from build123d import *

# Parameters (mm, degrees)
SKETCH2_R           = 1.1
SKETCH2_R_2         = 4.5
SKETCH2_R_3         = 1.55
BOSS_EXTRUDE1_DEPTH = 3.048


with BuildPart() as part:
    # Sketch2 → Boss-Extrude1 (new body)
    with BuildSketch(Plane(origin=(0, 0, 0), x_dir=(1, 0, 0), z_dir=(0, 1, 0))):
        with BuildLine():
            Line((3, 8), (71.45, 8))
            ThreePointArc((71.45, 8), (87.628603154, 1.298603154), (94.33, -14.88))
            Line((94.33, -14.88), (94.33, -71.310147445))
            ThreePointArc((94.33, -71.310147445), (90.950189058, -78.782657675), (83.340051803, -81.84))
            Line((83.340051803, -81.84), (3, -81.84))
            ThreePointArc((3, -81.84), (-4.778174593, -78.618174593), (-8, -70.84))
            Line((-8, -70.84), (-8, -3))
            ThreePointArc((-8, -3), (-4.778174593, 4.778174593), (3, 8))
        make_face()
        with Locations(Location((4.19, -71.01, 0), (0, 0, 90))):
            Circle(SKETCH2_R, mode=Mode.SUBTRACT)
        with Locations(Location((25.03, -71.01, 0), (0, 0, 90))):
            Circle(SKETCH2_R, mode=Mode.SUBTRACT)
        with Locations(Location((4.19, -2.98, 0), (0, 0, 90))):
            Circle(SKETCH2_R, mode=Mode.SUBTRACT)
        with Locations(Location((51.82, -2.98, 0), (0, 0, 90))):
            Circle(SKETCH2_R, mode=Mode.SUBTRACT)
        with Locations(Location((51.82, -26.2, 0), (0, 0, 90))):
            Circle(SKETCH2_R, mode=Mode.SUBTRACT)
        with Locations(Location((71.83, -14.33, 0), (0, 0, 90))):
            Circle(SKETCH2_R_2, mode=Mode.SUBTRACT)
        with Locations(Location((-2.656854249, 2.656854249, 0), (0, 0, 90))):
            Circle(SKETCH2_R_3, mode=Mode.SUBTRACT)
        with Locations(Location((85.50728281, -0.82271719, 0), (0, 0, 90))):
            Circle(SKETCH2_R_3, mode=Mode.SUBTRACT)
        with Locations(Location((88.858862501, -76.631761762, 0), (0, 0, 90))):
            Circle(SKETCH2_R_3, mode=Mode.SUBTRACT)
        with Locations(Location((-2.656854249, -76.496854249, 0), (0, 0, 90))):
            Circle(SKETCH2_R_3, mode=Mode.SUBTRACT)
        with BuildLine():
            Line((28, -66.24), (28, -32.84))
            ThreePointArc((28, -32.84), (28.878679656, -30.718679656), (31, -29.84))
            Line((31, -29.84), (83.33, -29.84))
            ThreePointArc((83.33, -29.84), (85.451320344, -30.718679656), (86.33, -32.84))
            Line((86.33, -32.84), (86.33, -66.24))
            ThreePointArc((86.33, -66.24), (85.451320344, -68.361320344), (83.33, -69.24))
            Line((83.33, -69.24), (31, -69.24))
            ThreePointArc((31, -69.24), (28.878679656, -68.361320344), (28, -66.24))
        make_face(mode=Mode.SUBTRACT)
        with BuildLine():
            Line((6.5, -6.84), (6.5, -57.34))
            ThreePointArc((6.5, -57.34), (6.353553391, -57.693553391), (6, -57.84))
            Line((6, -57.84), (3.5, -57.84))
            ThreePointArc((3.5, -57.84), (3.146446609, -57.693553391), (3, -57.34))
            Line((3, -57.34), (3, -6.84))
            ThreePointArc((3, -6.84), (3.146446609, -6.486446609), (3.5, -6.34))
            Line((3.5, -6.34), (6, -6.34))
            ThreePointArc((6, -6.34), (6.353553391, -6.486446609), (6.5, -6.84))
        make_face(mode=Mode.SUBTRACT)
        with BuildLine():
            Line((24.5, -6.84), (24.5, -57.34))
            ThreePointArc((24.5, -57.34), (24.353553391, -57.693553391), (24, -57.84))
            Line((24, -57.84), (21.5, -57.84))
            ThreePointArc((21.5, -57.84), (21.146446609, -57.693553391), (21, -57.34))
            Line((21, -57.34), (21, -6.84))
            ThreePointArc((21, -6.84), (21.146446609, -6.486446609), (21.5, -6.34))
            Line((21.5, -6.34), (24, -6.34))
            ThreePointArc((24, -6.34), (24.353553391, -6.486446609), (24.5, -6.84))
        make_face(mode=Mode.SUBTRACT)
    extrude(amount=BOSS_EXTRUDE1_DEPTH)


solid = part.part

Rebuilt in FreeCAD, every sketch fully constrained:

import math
import FreeCAD as App
import Part
import Sketcher

V = App.Vector

doc = App.newDocument("Part")
params = doc.addObject("Spreadsheet::Sheet", "Params")
for row, (alias, value) in enumerate([
    ("sketch1_diameter", "9 mm"),
    ("sketch1_radius", "11 mm"),
    ("sketch1_radius2", "3 mm"),
    ("sketch1_diameter2", "3.1 mm"),
    ("sketch1_diameter3", "2.2 mm"),
    ("pad1_length", "3.048 mm"),
], start=1):
    params.set(f"A{row}", alias)
    params.set(f"B{row}", "=" + value)
    params.setAlias(f"B{row}", alias)

body = doc.addObject("PartDesign::Body", "Body")

# Sketch on XZ plane
sketch1 = body.newObject("Sketcher::SketchObject", "Sketch")
sketch1.AttachmentSupport = (doc.getObject("XZ_Plane"), [""])
sketch1.MapMode = "FlatFace"
sketch1.addGeometry(Part.LineSegment(V(71.45, -8, 0), V(3, -8, 0)), False)
sketch1.addGeometry(Part.ArcOfCircle(Part.Circle(V(3, 3, 0), V(0, 0, 1), 11), math.radians(180), math.radians(270)), False)
sketch1.addGeometry(Part.LineSegment(V(-8, 3, 0), V(-8, 70.84, 0)), False)
sketch1.addGeometry(Part.ArcOfCircle(Part.Circle(V(3, 70.84, 0), V(0, 0, 1), 11), math.radians(90), math.radians(180)), False)
sketch1.addGeometry(Part.LineSegment(V(3, 81.84, 0), V(83.34, 81.84, 0)), False)
sketch1.addGeometry(Part.ArcOfCircle(Part.Circle(V(83.34, 70.84, 0), V(0, 0, 1), 11), math.radians(2), math.radians(90)), False)
sketch1.addGeometry(Part.LineSegment(V(94.33, 71.31, 0), V(94.33, 14.88, 0)), False)
sketch1.addGeometry(Part.ArcOfCircle(Part.Circle(V(71.45, 14.88, 0), V(0, 0, 1), 22.88), math.radians(-90), math.radians(0)), False)
sketch1.addGeometry(Part.Circle(V(88.86, 76.63, 0), V(0, 0, 1), 1.55), False)
sketch1.addGeometry(Part.LineSegment(V(28, 66.24, 0), V(28, 32.84, 0)), False)
sketch1.addGeometry(Part.ArcOfCircle(Part.Circle(V(31, 32.84, 0), V(0, 0, 1), 3), math.radians(180), math.radians(270)), False)
sketch1.addGeometry(Part.LineSegment(V(31, 29.84, 0), V(83.33, 29.84, 0)), False)
sketch1.addGeometry(Part.ArcOfCircle(Part.Circle(V(83.33, 32.84, 0), V(0, 0, 1), 3), math.radians(-90), math.radians(0)), False)
sketch1.addGeometry(Part.LineSegment(V(86.33, 32.84, 0), V(86.33, 66.24, 0)), False)
sketch1.addGeometry(Part.ArcOfCircle(Part.Circle(V(83.33, 66.24, 0), V(0, 0, 1), 3), math.radians(0), math.radians(90)), False)
sketch1.addGeometry(Part.LineSegment(V(83.33, 69.24, 0), V(31, 69.24, 0)), False)
sketch1.addGeometry(Part.ArcOfCircle(Part.Circle(V(31, 66.24, 0), V(0, 0, 1), 3), math.radians(90), math.radians(180)), False)
sketch1.addGeometry(Part.Circle(V(25.03, 71.01, 0), V(0, 0, 1), 1.1), False)
sketch1.addGeometry(Part.Circle(V(-2.66, 76.5, 0), V(0, 0, 1), 1.55), False)
sketch1.addGeometry(Part.Circle(V(4.19, 71.01, 0), V(0, 0, 1), 1.1), False)
sketch1.addGeometry(Part.Circle(V(51.82, 26.2, 0), V(0, 0, 1), 1.1), False)
sketch1.addGeometry(Part.Circle(V(71.83, 14.33, 0), V(0, 0, 1), 4.5), False)
sketch1.addGeometry(Part.Circle(V(85.51, 0.82, 0), V(0, 0, 1), 1.55), False)
sketch1.addGeometry(Part.Circle(V(51.82, 2.98, 0), V(0, 0, 1), 1.1), False)
sketch1.addGeometry(Part.LineSegment(V(24.5, 6.84, 0), V(24.5, 57.34, 0)), False)
sketch1.addGeometry(Part.ArcOfCircle(Part.Circle(V(24, 57.34, 0), V(0, 0, 1), 0.5), math.radians(0), math.radians(90)), False)
sketch1.addGeometry(Part.LineSegment(V(24, 57.84, 0), V(21.5, 57.84, 0)), False)
sketch1.addGeometry(Part.ArcOfCircle(Part.Circle(V(21.5, 57.34, 0), V(0, 0, 1), 0.5), math.radians(90), math.radians(180)), False)
sketch1.addGeometry(Part.LineSegment(V(21, 57.34, 0), V(21, 6.84, 0)), False)
sketch1.addGeometry(Part.ArcOfCircle(Part.Circle(V(21.5, 6.84, 0), V(0, 0, 1), 0.5), math.radians(180), math.radians(270)), False)
sketch1.addGeometry(Part.LineSegment(V(21.5, 6.34, 0), V(24, 6.34, 0)), False)
sketch1.addGeometry(Part.ArcOfCircle(Part.Circle(V(24, 6.84, 0), V(0, 0, 1), 0.5), math.radians(-90), math.radians(0)), False)
sketch1.addGeometry(Part.LineSegment(V(6.5, 6.84, 0), V(6.5, 57.34, 0)), False)
sketch1.addGeometry(Part.ArcOfCircle(Part.Circle(V(6, 57.34, 0), V(0, 0, 1), 0.5), math.radians(0), math.radians(90)), False)
sketch1.addGeometry(Part.LineSegment(V(6, 57.84, 0), V(3.5, 57.84, 0)), False)
sketch1.addGeometry(Part.ArcOfCircle(Part.Circle(V(3.5, 57.34, 0), V(0, 0, 1), 0.5), math.radians(90), math.radians(180)), False)
sketch1.addGeometry(Part.LineSegment(V(3, 57.34, 0), V(3, 6.84, 0)), False)
sketch1.addGeometry(Part.ArcOfCircle(Part.Circle(V(3.5, 6.84, 0), V(0, 0, 1), 0.5), math.radians(180), math.radians(270)), False)
sketch1.addGeometry(Part.LineSegment(V(3.5, 6.34, 0), V(6, 6.34, 0)), False)
sketch1.addGeometry(Part.ArcOfCircle(Part.Circle(V(6, 6.84, 0), V(0, 0, 1), 0.5), math.radians(-90), math.radians(0)), False)
sketch1.addGeometry(Part.Circle(V(4.19, 2.98, 0), V(0, 0, 1), 1.1), False)
sketch1.addGeometry(Part.Circle(V(-2.66, -2.66, 0), V(0, 0, 1), 1.55), False)
sketch1.addConstraint(Sketcher.Constraint("Tangent", 0, 2, 1, 2))
sketch1.addConstraint(Sketcher.Constraint("Tangent", 1, 1, 2, 1))
sketch1.addConstraint(Sketcher.Constraint("Tangent", 2, 2, 3, 2))
sketch1.addConstraint(Sketcher.Constraint("Tangent", 3, 1, 4, 1))
sketch1.addConstraint(Sketcher.Constraint("Tangent", 4, 2, 5, 2))
sketch1.addConstraint(Sketcher.Constraint("Coincident", 5, 1, 6, 1))
sketch1.addConstraint(Sketcher.Constraint("Tangent", 6, 2, 7, 2))
sketch1.addConstraint(Sketcher.Constraint("Tangent", 7, 1, 0, 1))
sketch1.addConstraint(Sketcher.Constraint("Tangent", 9, 2, 10, 1))
sketch1.addConstraint(Sketcher.Constraint("Tangent", 10, 2, 11, 1))
sketch1.addConstraint(Sketcher.Constraint("Tangent", 11, 2, 12, 1))
sketch1.addConstraint(Sketcher.Constraint("Tangent", 12, 2, 13, 1))
sketch1.addConstraint(Sketcher.Constraint("Tangent", 13, 2, 14, 1))
sketch1.addConstraint(Sketcher.Constraint("Tangent", 14, 2, 15, 1))
sketch1.addConstraint(Sketcher.Constraint("Tangent", 15, 2, 16, 1))
sketch1.addConstraint(Sketcher.Constraint("Tangent", 16, 2, 9, 1))
sketch1.addConstraint(Sketcher.Constraint("Tangent", 24, 2, 25, 1))
sketch1.addConstraint(Sketcher.Constraint("Tangent", 25, 2, 26, 1))
sketch1.addConstraint(Sketcher.Constraint("Tangent", 26, 2, 27, 1))
sketch1.addConstraint(Sketcher.Constraint("Tangent", 27, 2, 28, 1))
sketch1.addConstraint(Sketcher.Constraint("Tangent", 28, 2, 29, 1))
sketch1.addConstraint(Sketcher.Constraint("Tangent", 29, 2, 30, 1))
sketch1.addConstraint(Sketcher.Constraint("Tangent", 30, 2, 31, 1))
sketch1.addConstraint(Sketcher.Constraint("Tangent", 31, 2, 24, 1))
sketch1.addConstraint(Sketcher.Constraint("Tangent", 32, 2, 33, 1))
sketch1.addConstraint(Sketcher.Constraint("Tangent", 33, 2, 34, 1))
sketch1.addConstraint(Sketcher.Constraint("Tangent", 34, 2, 35, 1))
sketch1.addConstraint(Sketcher.Constraint("Tangent", 35, 2, 36, 1))
sketch1.addConstraint(Sketcher.Constraint("Tangent", 36, 2, 37, 1))
sketch1.addConstraint(Sketcher.Constraint("Tangent", 37, 2, 38, 1))
sketch1.addConstraint(Sketcher.Constraint("Tangent", 38, 2, 39, 1))
sketch1.addConstraint(Sketcher.Constraint("Tangent", 39, 2, 32, 1))
sketch1.addConstraint(Sketcher.Constraint("Horizontal", 0))
sketch1.addConstraint(Sketcher.Constraint("Vertical", 2))
sketch1.addConstraint(Sketcher.Constraint("Horizontal", 4))
sketch1.addConstraint(Sketcher.Constraint("Vertical", 6))
sketch1.addConstraint(Sketcher.Constraint("Vertical", 9))
sketch1.addConstraint(Sketcher.Constraint("Horizontal", 11))
sketch1.addConstraint(Sketcher.Constraint("Vertical", 13))
sketch1.addConstraint(Sketcher.Constraint("Horizontal", 15))
sketch1.addConstraint(Sketcher.Constraint("Vertical", 24))
sketch1.addConstraint(Sketcher.Constraint("Horizontal", 26))
sketch1.addConstraint(Sketcher.Constraint("Vertical", 28))
sketch1.addConstraint(Sketcher.Constraint("Horizontal", 30))
sketch1.addConstraint(Sketcher.Constraint("Vertical", 32))
sketch1.addConstraint(Sketcher.Constraint("Horizontal", 34))
sketch1.addConstraint(Sketcher.Constraint("Vertical", 36))
sketch1.addConstraint(Sketcher.Constraint("Horizontal", 38))
sketch1.addConstraint(Sketcher.Constraint("Equal", 1, 3))
sketch1.addConstraint(Sketcher.Constraint("Equal", 3, 5))
sketch1.addConstraint(Sketcher.Constraint("Equal", 10, 12))
sketch1.addConstraint(Sketcher.Constraint("Equal", 12, 14))
sketch1.addConstraint(Sketcher.Constraint("Equal", 14, 16))
sketch1.addConstraint(Sketcher.Constraint("Equal", 8, 18))
sketch1.addConstraint(Sketcher.Constraint("Equal", 17, 19))
sketch1.addConstraint(Sketcher.Constraint("Equal", 19, 20))
sketch1.addConstraint(Sketcher.Constraint("Equal", 18, 22))
sketch1.addConstraint(Sketcher.Constraint("Equal", 20, 23))
sketch1.addConstraint(Sketcher.Constraint("Equal", 25, 27))
sketch1.addConstraint(Sketcher.Constraint("Equal", 27, 29))
sketch1.addConstraint(Sketcher.Constraint("Equal", 29, 31))
sketch1.addConstraint(Sketcher.Constraint("Equal", 31, 33))
sketch1.addConstraint(Sketcher.Constraint("Equal", 33, 35))
sketch1.addConstraint(Sketcher.Constraint("Equal", 35, 37))
sketch1.addConstraint(Sketcher.Constraint("Equal", 37, 39))
sketch1.addConstraint(Sketcher.Constraint("Equal", 23, 40))
sketch1.addConstraint(Sketcher.Constraint("Equal", 22, 41))
sketch1.addConstraint(Sketcher.Constraint("Horizontal", 17, 3, 19, 3))
sketch1.addConstraint(Sketcher.Constraint("Horizontal", 27, 3, 33, 3))
sketch1.addConstraint(Sketcher.Constraint("Horizontal", 31, 3, 37, 3))
sketch1.addConstraint(Sketcher.Constraint("Horizontal", 23, 3, 40, 3))
sketch1.addConstraint(Sketcher.Constraint("Vertical", 20, 3, 23, 3))
sketch1.addConstraint(Sketcher.Constraint("Vertical", 19, 3, 40, 3))
sketch1.addConstraint(Sketcher.Constraint("Vertical", 18, 3, 41, 3))
sketch1.addConstraint(Sketcher.Constraint("Vertical", 3, 1, 35, 2))
sketch1.addConstraint(Sketcher.Constraint("Equal", 30, 34))
sketch1.addConstraint(Sketcher.Constraint("Diameter", 21, 9.0))
sketch1.addConstraint(Sketcher.Constraint("Radius", 1, 11.0))
sketch1.addConstraint(Sketcher.Constraint("Radius", 10, 3.0))
sketch1.addConstraint(Sketcher.Constraint("Diameter", 8, 3.1))
sketch1.addConstraint(Sketcher.Constraint("Diameter", 17, 2.2))
sketch1.addConstraint(Sketcher.Constraint("Radius", 25, 0.5))
sketch1.addConstraint(Sketcher.Constraint("Radius", 7, 22.88))
sketch1.addConstraint(Sketcher.Constraint("DistanceX", 26, 2, 26, 1, 2.5))
sketch1.addConstraint(Sketcher.Constraint("DistanceY", 9, 2, 9, 1, 33.4))
sketch1.addConstraint(Sketcher.Constraint("DistanceY", 24, 1, 24, 2, 50.5))
sketch1.addConstraint(Sketcher.Constraint("DistanceX", -1, 1, 1, 3, 3.0))
sketch1.addConstraint(Sketcher.Constraint("DistanceY", -1, 1, 1, 3, 3.0))
sketch1.addConstraint(Sketcher.Constraint("DistanceX", -1, 1, 10, 3, 31.0))
sketch1.addConstraint(Sketcher.Constraint("DistanceX", -1, 1, 25, 3, 24.0))
sketch1.addConstraint(Sketcher.Constraint("DistanceY", 10, 3, 3, 3, 38.0))
sketch1.addConstraint(Sketcher.Constraint("DistanceY", 29, 3, 10, 3, 26.0))
sketch1.addConstraint(Sketcher.Constraint("DistanceX", 14, 3, 5, 1, 11.0))
sketch1.addConstraint(Sketcher.Constraint("DistanceX", 0, 2, 0, 1, 68.45))
sketch1.addConstraint(Sketcher.Constraint("DistanceY", 2, 1, 2, 2, 67.84))
sketch1.addConstraint(Sketcher.Constraint("DistanceY", -1, 1, 20, 3, 26.2))
sketch1.addConstraint(Sketcher.Constraint("DistanceX", 17, 3, 14, 3, 58.3))
sketch1.addConstraint(Sketcher.Constraint("DistanceX", 21, 3, 12, 3, 11.5))
sketch1.addConstraint(Sketcher.Constraint("DistanceY", 23, 3, 7, 3, 11.9))
sketch1.addConstraint(Sketcher.Constraint("DistanceY", -1, 1, 17, 3, 71.01))
sketch1.addConstraint(Sketcher.Constraint("DistanceX", -1, 1, 19, 3, 4.19))
sketch1.addConstraint(Sketcher.Constraint("DistanceX", -1, 1, 20, 3, 51.82))
sketch1.addConstraint(Sketcher.Constraint("DistanceY", -1, 1, 21, 3, 14.33))
sketch1.addConstraint(Sketcher.Constraint("DistanceX", 4, 1, 4, 2, 80.340052))
sketch1.addConstraint(Sketcher.Constraint("DistanceY", -1, 1, 8, 3, 76.631762))
sketch1.addConstraint(Sketcher.Constraint("DistanceX", 5, 3, 8, 3, 5.518811))
sketch1.addConstraint(Sketcher.Constraint("DistanceX", 18, 3, -1, 1, 2.656854))
sketch1.addConstraint(Sketcher.Constraint("DistanceY", -1, 1, 18, 3, 76.496854))
sketch1.addConstraint(Sketcher.Constraint("DistanceX", -1, 1, 22, 3, 85.507283))
sketch1.addConstraint(Sketcher.Constraint("DistanceY", -1, 1, 22, 3, 0.822717))
sketch1.addConstraint(Sketcher.Constraint("DistanceY", 41, 3, -1, 1, 2.656854))
sketch1.setExpression("Constraints[76]", "Params.sketch1_diameter")
sketch1.setExpression("Constraints[77]", "Params.sketch1_radius")
sketch1.setExpression("Constraints[78]", "Params.sketch1_radius2")
sketch1.setExpression("Constraints[79]", "Params.sketch1_diameter2")
sketch1.setExpression("Constraints[80]", "Params.sketch1_diameter3")
pad1 = body.newObject("PartDesign::Pad", "Pad")
pad1.Profile = sketch1
pad1.setExpression("Length", "Params.pad1_length")
pad1.Reversed = True

doc.recompute()
